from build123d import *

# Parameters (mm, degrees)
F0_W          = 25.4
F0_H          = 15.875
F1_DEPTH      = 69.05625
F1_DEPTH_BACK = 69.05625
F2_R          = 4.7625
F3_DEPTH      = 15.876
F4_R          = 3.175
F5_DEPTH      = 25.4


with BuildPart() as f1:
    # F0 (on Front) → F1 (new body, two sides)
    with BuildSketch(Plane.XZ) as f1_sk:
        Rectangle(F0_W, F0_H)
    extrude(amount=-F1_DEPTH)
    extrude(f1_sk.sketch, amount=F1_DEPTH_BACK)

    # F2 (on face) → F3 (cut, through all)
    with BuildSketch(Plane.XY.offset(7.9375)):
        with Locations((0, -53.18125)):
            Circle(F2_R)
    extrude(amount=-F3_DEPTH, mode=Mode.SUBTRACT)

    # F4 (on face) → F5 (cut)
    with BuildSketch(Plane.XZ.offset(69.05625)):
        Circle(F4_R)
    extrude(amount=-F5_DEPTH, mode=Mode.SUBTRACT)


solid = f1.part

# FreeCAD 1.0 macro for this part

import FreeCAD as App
import Part
import Sketcher

V = App.Vector
Q = App.Units.Quantity


def add_polygon(sketch, points):
    """Adds a closed chain of lines whose ends are joined by coincident constraints."""
    first, n = sketch.GeometryCount, len(points)
    for a, b in zip(points, points[1:] + points[:1]):
        sketch.addGeometry(Part.LineSegment(App.Vector(*a, 0), App.Vector(*b, 0)), False)
    for i in range(n):
        sketch.addConstraint(Sketcher.Constraint("Coincident", first + i, 2, first + (i + 1) % n, 1))

doc = App.newDocument("Part")
params = doc.addObject("Spreadsheet::Sheet", "Params")
for row, (alias, value) in enumerate([
    ("sketch1_width", "1 in"),
    ("sketch1_height", "0.625 in"),
    ("pad1_length", "2.71875 in"),
    ("pad1_length2", "2.71875 in"),
    ("sketch2_diameter", "0.375 in"),
    ("sketch3_diameter", "0.25 in"),
    ("pocket2_length", "1 in"),
], start=1):
    params.set(f"A{row}", alias)
    params.set(f"B{row}", "=" + value)
    params.setAlias(f"B{row}", alias)

body = doc.addObject("PartDesign::Body", "Body")

# Sketch on XZ plane
sketch1 = body.newObject("Sketcher::SketchObject", "Sketch")
sketch1.AttachmentSupport = (doc.getObject("XZ_Plane"), [""])
sketch1.MapMode = "FlatFace"
add_polygon(sketch1, [(-13, 8), (-13, -8), (13, -8), (13, 8)])  # lines 0-3
sketch1.addConstraint([
    Sketcher.Constraint("Vertical", 0),
    Sketcher.Constraint("Horizontal", 1),
    Sketcher.Constraint("Vertical", 2),
    Sketcher.Constraint("Horizontal", 3),
    Sketcher.Constraint("Symmetric", 0, 2, 2, 2, -1, 1),
    Sketcher.Constraint("DistanceX", 1, 1, 1, 2, Q("1 in")),
    Sketcher.Constraint("DistanceY", 0, 2, 0, 1, Q("0.625 in")),
])
sketch1.setExpression("Constraints[9]", "Params.sketch1_width")
sketch1.setExpression("Constraints[10]", "Params.sketch1_height")
pad1 = body.newObject("PartDesign::Pad", "Pad")
pad1.Profile = sketch1
pad1.Type = "TwoLengths"
pad1.setExpression("Length", "Params.pad1_length")
pad1.setExpression("Length2", "Params.pad1_length2")
pad1.Reversed = True

# Sketch on XY plane
sketch2 = body.newObject("Sketcher::SketchObject", "Sketch001")
sketch2.AttachmentSupport = (doc.getObject("XY_Plane"), [""])
sketch2.MapMode = "FlatFace"
sketch2.AttachmentOffset = App.Placement(V(0, 0, 0.3125 * 25.4), App.Rotation())
sketch2.addGeometry(Part.Circle(V(0, -53.2, 0), V(0, 0, 1), 4.8), False)
sketch2.addConstraint([
    Sketcher.Constraint("PointOnObject", 0, 3, -2),
    Sketcher.Constraint("Diameter", 0, Q("0.375 in")),
    Sketcher.Constraint("DistanceY", 0, 3, -1, 1, Q("2.09375 in")),
])
sketch2.setExpression("Constraints[1]", "Params.sketch2_diameter")
pocket1 = body.newObject("PartDesign::Pocket", "Pocket")
pocket1.Profile = sketch2
pocket1.Type = "ThroughAll"

# Sketch on XZ plane
sketch3 = body.newObject("Sketcher::SketchObject", "Sketch002")
sketch3.AttachmentSupport = (doc.getObject("XZ_Plane"), [""])
sketch3.MapMode = "FlatFace"
sketch3.AttachmentOffset = App.Placement(V(0, 0, 2.71875 * 25.4), App.Rotation())
sketch3.addGeometry(Part.Circle(V(0, 0, 0), V(0, 0, 1), 3.2), False)
sketch3.addConstraint([
    Sketcher.Constraint("Coincident", 0, 3, -1, 1),
    Sketcher.Constraint("Diameter", 0, Q("0.25 in")),
])
sketch3.setExpression("Constraints[1]", "Params.sketch3_diameter")
pocket2 = body.newObject("PartDesign::Pocket", "Pocket001")
pocket2.Profile = sketch3
pocket2.setExpression("Length", "Params.pocket2_length")

doc.recompute()
